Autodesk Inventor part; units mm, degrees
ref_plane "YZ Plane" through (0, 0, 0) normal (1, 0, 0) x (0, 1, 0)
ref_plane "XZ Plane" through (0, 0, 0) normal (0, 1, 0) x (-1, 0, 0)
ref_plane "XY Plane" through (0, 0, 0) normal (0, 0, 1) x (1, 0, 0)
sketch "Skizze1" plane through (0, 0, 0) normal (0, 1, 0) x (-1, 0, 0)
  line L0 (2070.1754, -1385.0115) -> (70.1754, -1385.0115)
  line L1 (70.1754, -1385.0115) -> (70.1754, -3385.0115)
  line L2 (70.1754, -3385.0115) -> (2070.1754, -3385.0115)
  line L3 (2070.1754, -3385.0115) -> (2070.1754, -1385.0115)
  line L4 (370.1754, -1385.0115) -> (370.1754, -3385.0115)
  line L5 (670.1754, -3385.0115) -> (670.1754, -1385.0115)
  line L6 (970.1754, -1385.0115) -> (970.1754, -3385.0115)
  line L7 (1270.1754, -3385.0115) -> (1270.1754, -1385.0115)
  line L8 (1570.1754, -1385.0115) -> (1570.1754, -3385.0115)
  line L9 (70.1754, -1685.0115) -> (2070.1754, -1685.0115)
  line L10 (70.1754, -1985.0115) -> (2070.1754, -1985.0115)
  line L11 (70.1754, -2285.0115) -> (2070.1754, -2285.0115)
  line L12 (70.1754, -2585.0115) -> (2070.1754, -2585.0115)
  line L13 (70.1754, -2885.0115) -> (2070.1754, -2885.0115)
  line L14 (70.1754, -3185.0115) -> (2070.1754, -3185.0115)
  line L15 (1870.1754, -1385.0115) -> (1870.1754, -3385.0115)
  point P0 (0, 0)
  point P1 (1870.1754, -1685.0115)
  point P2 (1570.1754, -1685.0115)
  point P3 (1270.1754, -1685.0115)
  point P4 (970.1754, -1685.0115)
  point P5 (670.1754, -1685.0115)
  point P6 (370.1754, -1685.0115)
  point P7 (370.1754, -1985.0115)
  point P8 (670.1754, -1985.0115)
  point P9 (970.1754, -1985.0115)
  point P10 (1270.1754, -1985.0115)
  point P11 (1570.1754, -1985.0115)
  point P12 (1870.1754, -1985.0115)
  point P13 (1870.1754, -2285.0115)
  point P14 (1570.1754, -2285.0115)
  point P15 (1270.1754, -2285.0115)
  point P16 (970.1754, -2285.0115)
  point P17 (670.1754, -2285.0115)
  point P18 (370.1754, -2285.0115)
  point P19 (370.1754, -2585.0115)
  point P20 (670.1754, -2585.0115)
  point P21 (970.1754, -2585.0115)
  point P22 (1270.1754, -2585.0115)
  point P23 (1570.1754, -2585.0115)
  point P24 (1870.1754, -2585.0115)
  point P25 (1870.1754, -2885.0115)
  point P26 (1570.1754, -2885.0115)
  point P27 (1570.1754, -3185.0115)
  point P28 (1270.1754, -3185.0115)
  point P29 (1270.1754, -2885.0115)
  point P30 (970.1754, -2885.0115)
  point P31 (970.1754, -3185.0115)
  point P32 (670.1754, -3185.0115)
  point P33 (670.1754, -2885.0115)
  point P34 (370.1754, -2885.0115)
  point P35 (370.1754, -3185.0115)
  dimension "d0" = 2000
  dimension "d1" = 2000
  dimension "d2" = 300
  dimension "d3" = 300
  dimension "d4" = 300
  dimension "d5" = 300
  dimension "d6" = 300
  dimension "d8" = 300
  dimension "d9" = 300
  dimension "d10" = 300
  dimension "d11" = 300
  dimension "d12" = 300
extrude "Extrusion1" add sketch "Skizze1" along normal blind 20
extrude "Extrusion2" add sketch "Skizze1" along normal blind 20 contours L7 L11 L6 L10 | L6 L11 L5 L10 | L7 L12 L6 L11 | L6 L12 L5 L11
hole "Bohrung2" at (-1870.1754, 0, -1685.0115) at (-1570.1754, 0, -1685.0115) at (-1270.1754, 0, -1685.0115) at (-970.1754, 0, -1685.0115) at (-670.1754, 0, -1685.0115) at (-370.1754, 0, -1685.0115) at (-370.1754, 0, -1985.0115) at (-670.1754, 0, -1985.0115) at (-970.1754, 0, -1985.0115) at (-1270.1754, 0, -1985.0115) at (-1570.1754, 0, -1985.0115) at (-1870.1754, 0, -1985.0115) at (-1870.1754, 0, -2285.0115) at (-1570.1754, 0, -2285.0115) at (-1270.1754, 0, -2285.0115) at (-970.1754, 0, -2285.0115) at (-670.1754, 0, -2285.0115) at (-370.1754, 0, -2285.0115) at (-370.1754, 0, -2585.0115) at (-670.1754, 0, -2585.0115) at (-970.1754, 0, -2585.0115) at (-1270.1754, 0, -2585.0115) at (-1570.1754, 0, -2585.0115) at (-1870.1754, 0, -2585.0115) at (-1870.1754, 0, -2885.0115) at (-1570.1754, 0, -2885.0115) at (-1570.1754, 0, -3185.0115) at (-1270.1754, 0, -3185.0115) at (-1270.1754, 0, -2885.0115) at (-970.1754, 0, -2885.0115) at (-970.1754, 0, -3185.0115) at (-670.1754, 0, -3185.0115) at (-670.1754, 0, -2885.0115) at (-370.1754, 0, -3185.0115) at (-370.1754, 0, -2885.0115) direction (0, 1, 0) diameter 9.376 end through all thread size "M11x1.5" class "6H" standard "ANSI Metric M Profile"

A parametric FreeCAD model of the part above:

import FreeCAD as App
import Part
import Sketcher
from FreeCAD import Vector
Q = App.Units.Quantity

doc = App.newDocument("Part")
params = doc.addObject("Spreadsheet::Sheet", "Params")
for row, (alias, value) in enumerate([
    ("sketch1_width", "2000 mm"),
    ("pad1_length", "20 mm"),
    ("sketch2_width", "600 mm"),
    ("pad2_length", "20 mm"),
    ("hole_diameter", "9.376 mm"),
], start=1):
    params.set(f"A{row}", alias)
    params.set(f"B{row}", "=" + value)
    params.setAlias(f"B{row}", alias)

body = doc.addObject("PartDesign::Body", "Body")

# Sketch on XZ plane
sketch1 = body.newObject("Sketcher::SketchObject", "Sketch")
sketch1.AttachmentSupport = (doc.getObject("XZ_Plane"), [""])
sketch1.MapMode = "FlatFace"
sketch1.addGeometry([
    Part.LineSegment(Vector(-2070, -1385, 0), Vector(-70, -1385, 0)),
    Part.LineSegment(Vector(-70, -1385, 0), Vector(-70, -3385, 0)),
    Part.LineSegment(Vector(-70, -3385, 0), Vector(-2070, -3385, 0)),
    Part.LineSegment(Vector(-2070, -3385, 0), Vector(-2070, -1385, 0)),
], False)
sketch1.addConstraint([
    Sketcher.Constraint("Coincident", 0, 2, 1, 1),
    Sketcher.Constraint("Coincident", 1, 2, 2, 1),
    Sketcher.Constraint("Coincident", 2, 2, 3, 1),
    Sketcher.Constraint("Coincident", 3, 2, 0, 1),
    Sketcher.Constraint("Horizontal", 0),
    Sketcher.Constraint("Vertical", 1),
    Sketcher.Constraint("Horizontal", 2),
    Sketcher.Constraint("Vertical", 3),
    Sketcher.Constraint("Equal", 2, 1),
    Sketcher.Constraint("DistanceX", 0, 1, 0, 2, Q("2000 mm")),
    Sketcher.Constraint("DistanceX", 0, 2, -1, 1, Q("70.1754 mm")),
    Sketcher.Constraint("DistanceY", 0, 2, -1, 1, Q("1385.0115 mm")),
])
sketch1.setExpression("Constraints[9]", "Params.sketch1_width")
pad1 = body.newObject("PartDesign::Pad", "Pad")
pad1.Profile = sketch1
pad1.setExpression("Length", "Params.pad1_length")
pad1.Reversed = True

# Sketch on XZ plane
sketch2 = body.newObject("Sketcher::SketchObject", "Sketch001")
sketch2.AttachmentSupport = (doc.getObject("XZ_Plane"), [""])
sketch2.MapMode = "FlatFace"
sketch2.addGeometry([
    Part.LineSegment(Vector(-1270, -1985, 0), Vector(-670, -1985, 0)),
    Part.LineSegment(Vector(-670, -1985, 0), Vector(-670, -2585, 0)),
    Part.LineSegment(Vector(-670, -2585, 0), Vector(-1270, -2585, 0)),
    Part.LineSegment(Vector(-1270, -2585, 0), Vector(-1270, -1985, 0)),
], False)
sketch2.addConstraint([
    Sketcher.Constraint("Coincident", 0, 2, 1, 1),
    Sketcher.Constraint("Coincident", 1, 2, 2, 1),
    Sketcher.Constraint("Coincident", 2, 2, 3, 1),
    Sketcher.Constraint("Coincident", 3, 2, 0, 1),
    Sketcher.Constraint("Horizontal", 0),
    Sketcher.Constraint("Vertical", 1),
    Sketcher.Constraint("Horizontal", 2),
    Sketcher.Constraint("Vertical", 3),
    Sketcher.Constraint("Equal", 2, 1),
    Sketcher.Constraint("DistanceX", 0, 1, 0, 2, Q("600 mm")),
    Sketcher.Constraint("DistanceX", 0, 2, -1, 1, Q("670.1754 mm")),
    Sketcher.Constraint("DistanceY", 0, 2, -1, 1, Q("1985.0115 mm")),
])
sketch2.setExpression("Constraints[9]", "Params.sketch2_width")
pad2 = body.newObject("PartDesign::Pad", "Pad001")
pad2.Profile = sketch2
pad2.setExpression("Length", "Params.pad2_length")
pad2.Reversed = True

# Sketch on XZ plane
sketch3 = body.newObject("Sketcher::SketchObject", "Sketch002")
sketch3.AttachmentSupport = (doc.getObject("XZ_Plane"), [""])
sketch3.MapMode = "FlatFace"
sketch3.addGeometry([
    Part.Circle(Vector(-1870.2, -1685, 0), Vector(0, 0, 1), 4.7),  # 0
    Part.Circle(Vector(-1570.2, -1685, 0), Vector(0, 0, 1), 4.7),  # 1
    Part.Circle(Vector(-1270.2, -1685, 0), Vector(0, 0, 1), 4.7),  # 2
    Part.Circle(Vector(-970.2, -1685, 0), Vector(0, 0, 1), 4.7),  # 3
    Part.Circle(Vector(-670.2, -1685, 0), Vector(0, 0, 1), 4.7),  # 4
    Part.Circle(Vector(-370.2, -1685, 0), Vector(0, 0, 1), 4.7),  # 5
    Part.Circle(Vector(-370.2, -1985, 0), Vector(0, 0, 1), 4.7),  # 6
    Part.Circle(Vector(-670.2, -1985, 0), Vector(0, 0, 1), 4.7),  # 7
    Part.Circle(Vector(-970.2, -1985, 0), Vector(0, 0, 1), 4.7),  # 8
    Part.Circle(Vector(-1270.2, -1985, 0), Vector(0, 0, 1), 4.7),  # 9
    Part.Circle(Vector(-1570.2, -1985, 0), Vector(0, 0, 1), 4.7),  # 10
    Part.Circle(Vector(-1870.2, -1985, 0), Vector(0, 0, 1), 4.7),  # 11
    Part.Circle(Vector(-1870.2, -2285, 0), Vector(0, 0, 1), 4.7),  # 12
    Part.Circle(Vector(-1570.2, -2285, 0), Vector(0, 0, 1), 4.7),  # 13
    Part.Circle(Vector(-1270.2, -2285, 0), Vector(0, 0, 1), 4.7),  # 14
    Part.Circle(Vector(-970.2, -2285, 0), Vector(0, 0, 1), 4.7),  # 15
    Part.Circle(Vector(-670.2, -2285, 0), Vector(0, 0, 1), 4.7),  # 16
    Part.Circle(Vector(-370.2, -2285, 0), Vector(0, 0, 1), 4.7),  # 17
    Part.Circle(Vector(-370.2, -2585, 0), Vector(0, 0, 1), 4.7),  # 18
    Part.Circle(Vector(-670.2, -2585, 0), Vector(0, 0, 1), 4.7),  # 19
    Part.Circle(Vector(-970.2, -2585, 0), Vector(0, 0, 1), 4.7),  # 20
    Part.Circle(Vector(-1270.2, -2585, 0), Vector(0, 0, 1), 4.7),  # 21
    Part.Circle(Vector(-1570.2, -2585, 0), Vector(0, 0, 1), 4.7),  # 22
    Part.Circle(Vector(-1870.2, -2585, 0), Vector(0, 0, 1), 4.7),  # 23
    Part.Circle(Vector(-1870.2, -2885, 0), Vector(0, 0, 1), 4.7),  # 24
    Part.Circle(Vector(-1570.2, -2885, 0), Vector(0, 0, 1), 4.7),  # 25
    Part.Circle(Vector(-1570.2, -3185, 0), Vector(0, 0, 1), 4.7),  # 26
    Part.Circle(Vector(-1270.2, -3185, 0), Vector(0, 0, 1), 4.7),  # 27
    Part.Circle(Vector(-1270.2, -2885, 0), Vector(0, 0, 1), 4.7),  # 28
    Part.Circle(Vector(-970.2, -2885, 0), Vector(0, 0, 1), 4.7),  # 29
    Part.Circle(Vector(-970.2, -3185, 0), Vector(0, 0, 1), 4.7),  # 30
    Part.Circle(Vector(-670.2, -3185, 0), Vector(0, 0, 1), 4.7),  # 31
    Part.Circle(Vector(-670.2, -2885, 0), Vector(0, 0, 1), 4.7),  # 32
    Part.Circle(Vector(-370.2, -3185, 0), Vector(0, 0, 1), 4.7),  # 33
    Part.Circle(Vector(-370.2, -2885, 0), Vector(0, 0, 1), 4.7),  # 34
], False)
sketch3.addConstraint([
    Sketcher.Constraint("Equal", 0, 1),
    Sketcher.Constraint("Equal", 1, 2),
    Sketcher.Constraint("Equal", 2, 3),
    Sketcher.Constraint("Equal", 3, 4),
    Sketcher.Constraint("Equal", 4, 5),
    Sketcher.Constraint("Equal", 5, 6),
    Sketcher.Constraint("Equal", 6, 7),
    Sketcher.Constraint("Equal", 7, 8),
    Sketcher.Constraint("Equal", 8, 9),
    Sketcher.Constraint("Equal", 9, 10),
    Sketcher.Constraint("Equal", 10, 11),
    Sketcher.Constraint("Equal", 11, 12),
    Sketcher.Constraint("Equal", 12, 13),
    Sketcher.Constraint("Equal", 13, 14),
    Sketcher.Constraint("Equal", 14, 15),
    Sketcher.Constraint("Equal", 15, 16),
    Sketcher.Constraint("Equal", 16, 17),
    Sketcher.Constraint("Equal", 17, 18),
    Sketcher.Constraint("Equal", 18, 19),
    Sketcher.Constraint("Equal", 19, 20),
    Sketcher.Constraint("Equal", 20, 21),
    Sketcher.Constraint("Equal", 21, 22),
    Sketcher.Constraint("Equal", 22, 23),
    Sketcher.Constraint("Equal", 23, 24),
    Sketcher.Constraint("Equal", 24, 25),
    Sketcher.Constraint("Equal", 25, 26),
    Sketcher.Constraint("Equal", 26, 27),
    Sketcher.Constraint("Equal", 27, 28),
    Sketcher.Constraint("Equal", 28, 29),
    Sketcher.Constraint("Equal", 29, 30),
    Sketcher.Constraint("Equal", 30, 31),
    Sketcher.Constraint("Equal", 31, 32),
    Sketcher.Constraint("Equal", 32, 33),
    Sketcher.Constraint("Equal", 33, 34),
    Sketcher.Constraint("Horizontal", 0, 3, 1, 3),
    Sketcher.Constraint("Horizontal", 1, 3, 2, 3),
    Sketcher.Constraint("Horizontal", 2, 3, 3, 3),
    Sketcher.Constraint("Horizontal", 3, 3, 4, 3),
    Sketcher.Constraint("Horizontal", 4, 3, 5, 3),
    Sketcher.Constraint("Horizontal", 6, 3, 7, 3),
    Sketcher.Constraint("Horizontal", 7, 3, 8, 3),
    Sketcher.Constraint("Horizontal", 8, 3, 9, 3),
    Sketcher.Constraint("Horizontal", 9, 3, 10, 3),
    Sketcher.Constraint("Horizontal", 10, 3, 11, 3),
    Sketcher.Constraint("Horizontal", 12, 3, 13, 3),
    Sketcher.Constraint("Horizontal", 13, 3, 14, 3),
    Sketcher.Constraint("Horizontal", 14, 3, 15, 3),
    Sketcher.Constraint("Horizontal", 15, 3, 16, 3),
    Sketcher.Constraint("Horizontal", 16, 3, 17, 3),
    Sketcher.Constraint("Horizontal", 18, 3, 19, 3),
    Sketcher.Constraint("Horizontal", 19, 3, 20, 3),
    Sketcher.Constraint("Horizontal", 20, 3, 21, 3),
    Sketcher.Constraint("Horizontal", 21, 3, 22, 3),
    Sketcher.Constraint("Horizontal", 22, 3, 23, 3),
    Sketcher.Constraint("Horizontal", 24, 3, 25, 3),
    Sketcher.Constraint("Horizontal", 26, 3, 27, 3),
    Sketcher.Constraint("Horizontal", 25, 3, 28, 3),
    Sketcher.Constraint("Horizontal", 28, 3, 29, 3),
    Sketcher.Constraint("Horizontal", 27, 3, 30, 3),
    Sketcher.Constraint("Horizontal", 30, 3, 31, 3),
    Sketcher.Constraint("Horizontal", 29, 3, 32, 3),
    Sketcher.Constraint("Horizontal", 31, 3, 33, 3),
    Sketcher.Constraint("Horizontal", 32, 3, 34, 3),
    Sketcher.Constraint("Vertical", 5, 3, 6, 3),
    Sketcher.Constraint("Vertical", 4, 3, 7, 3),
    Sketcher.Constraint("Vertical", 3, 3, 8, 3),
    Sketcher.Constraint("Vertical", 2, 3, 9, 3),
    Sketcher.Constraint("Vertical", 1, 3, 10, 3),
    Sketcher.Constraint("Vertical", 0, 3, 11, 3),
    Sketcher.Constraint("Vertical", 11, 3, 12, 3),
    Sketcher.Constraint("Vertical", 10, 3, 13, 3),
    Sketcher.Constraint("Vertical", 9, 3, 14, 3),
    Sketcher.Constraint("Vertical", 8, 3, 15, 3),
    Sketcher.Constraint("Vertical", 7, 3, 16, 3),
    Sketcher.Constraint("Vertical", 6, 3, 17, 3),
    Sketcher.Constraint("Vertical", 17, 3, 18, 3),
    Sketcher.Constraint("Vertical", 16, 3, 19, 3),
    Sketcher.Constraint("Vertical", 15, 3, 20, 3),
    Sketcher.Constraint("Vertical", 14, 3, 21, 3),
    Sketcher.Constraint("Vertical", 13, 3, 22, 3),
    Sketcher.Constraint("Vertical", 12, 3, 23, 3),
    Sketcher.Constraint("Vertical", 23, 3, 24, 3),
    Sketcher.Constraint("Vertical", 22, 3, 25, 3),
    Sketcher.Constraint("Vertical", 25, 3, 26, 3),
    Sketcher.Constraint("Vertical", 21, 3, 27, 3),
    Sketcher.Constraint("Vertical", 27, 3, 28, 3),
    Sketcher.Constraint("Vertical", 20, 3, 29, 3),
    Sketcher.Constraint("Vertical", 29, 3, 30, 3),
    Sketcher.Constraint("Vertical", 19, 3, 31, 3),
    Sketcher.Constraint("Vertical", 31, 3, 32, 3),
    Sketcher.Constraint("Vertical", 18, 3, 33, 3),
    Sketcher.Constraint("Vertical", 33, 3, 34, 3),
    Sketcher.Constraint("Diameter", 0, Q("9.376 mm")),
    Sketcher.Constraint("DistanceX", 0, 3, 1, 3, Q("300 mm")),
    Sketcher.Constraint("DistanceX", 1, 3, 2, 3, Q("300 mm")),
    Sketcher.Constraint("DistanceX", 2, 3, 3, 3, Q("300 mm")),
    Sketcher.Constraint("DistanceX", 3, 3, 4, 3, Q("300 mm")),
    Sketcher.Constraint("DistanceX", 4, 3, 5, 3, Q("300 mm")),
    Sketcher.Constraint("DistanceY", 6, 3, 5, 3, Q("300 mm")),
    Sketcher.Constraint("DistanceY", 12, 3, 11, 3, Q("300 mm")),
    Sketcher.Constraint("DistanceY", 18, 3, 17, 3, Q("300 mm")),
    Sketcher.Constraint("DistanceY", 24, 3, 23, 3, Q("300 mm")),
    Sketcher.Constraint("DistanceY", 26, 3, 25, 3, Q("300 mm")),
    Sketcher.Constraint("DistanceX", 0, 3, -1, 1, Q("1870.1754 mm")),
    Sketcher.Constraint("DistanceY", 0, 3, -1, 1, Q("1685.0115 mm")),
])
doc.recompute()
hole = body.newObject("PartDesign::Hole", "Hole")
hole.Profile = sketch3
hole.ThreadType = "None"
hole.setExpression("Diameter", "Params.hole_diameter")
hole.DepthType = "ThroughAll"

doc.recompute()
